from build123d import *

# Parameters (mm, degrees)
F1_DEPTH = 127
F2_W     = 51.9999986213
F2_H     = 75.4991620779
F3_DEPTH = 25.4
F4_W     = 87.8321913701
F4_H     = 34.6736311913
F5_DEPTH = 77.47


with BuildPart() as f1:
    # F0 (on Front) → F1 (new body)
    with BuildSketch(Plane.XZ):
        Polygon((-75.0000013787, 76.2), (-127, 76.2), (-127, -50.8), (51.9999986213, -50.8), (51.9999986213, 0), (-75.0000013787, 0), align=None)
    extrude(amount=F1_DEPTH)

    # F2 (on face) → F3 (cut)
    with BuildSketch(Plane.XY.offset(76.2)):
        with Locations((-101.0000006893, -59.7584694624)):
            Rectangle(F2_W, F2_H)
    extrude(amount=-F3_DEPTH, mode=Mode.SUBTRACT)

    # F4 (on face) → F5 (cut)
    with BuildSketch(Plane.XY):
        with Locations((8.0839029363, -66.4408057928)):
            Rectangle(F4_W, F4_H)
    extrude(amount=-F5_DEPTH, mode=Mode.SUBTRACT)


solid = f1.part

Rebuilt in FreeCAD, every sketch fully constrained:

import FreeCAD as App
import Part
import Sketcher
from FreeCAD import Vector
Q = App.Units.Quantity

doc = App.newDocument("Part")
body = doc.addObject("PartDesign::Body", "Body")

# Sketch on XZ plane
sketch1 = doc.addObject("Sketcher::SketchObject", "Sketch")
body.addObject(sketch1)
sketch1.AttachmentSupport = (doc.XZ_Plane, [""])
sketch1.MapMode = "FlatFace"
sketch1.addGeometry(Part.LineSegment(Vector(-75.000001, 76.2, 0), Vector(-127, 76.2, 0)), False)
sketch1.addGeometry(Part.LineSegment(Vector(-127, 76.2, 0), Vector(-127, -50.8, 0)), False)
sketch1.addGeometry(Part.LineSegment(Vector(-127, -50.8, 0), Vector(51.999999, -50.8, 0)), False)
sketch1.addGeometry(Part.LineSegment(Vector(51.999999, -50.8, 0), Vector(51.999999, 0, 0)), False)
sketch1.addGeometry(Part.LineSegment(Vector(51.999999, 0, 0), Vector(-75.000001, 0, 0)), False)
sketch1.addGeometry(Part.LineSegment(Vector(-75.000001, 0, 0), Vector(-75.000001, 76.2, 0)), False)
sketch1.addConstraint(Sketcher.Constraint("Coincident", 0, 2, 1, 1))
sketch1.addConstraint(Sketcher.Constraint("Coincident", 1, 2, 2, 1))
sketch1.addConstraint(Sketcher.Constraint("Coincident", 2, 2, 3, 1))
sketch1.addConstraint(Sketcher.Constraint("Coincident", 3, 2, 4, 1))
sketch1.addConstraint(Sketcher.Constraint("Coincident", 4, 2, 5, 1))
sketch1.addConstraint(Sketcher.Constraint("Coincident", 5, 2, 0, 1))
sketch1.addConstraint(Sketcher.Constraint("Horizontal", 0))
sketch1.addConstraint(Sketcher.Constraint("Vertical", 1))
sketch1.addConstraint(Sketcher.Constraint("Horizontal", 2))
sketch1.addConstraint(Sketcher.Constraint("Vertical", 3))
sketch1.addConstraint(Sketcher.Constraint("Horizontal", 4))
sketch1.addConstraint(Sketcher.Constraint("Vertical", 5))
sketch1.addConstraint(Sketcher.Constraint("PointOnObject", 3, 2, -1))
sketch1.addConstraint(Sketcher.Constraint("Equal", 4, 1))
sketch1.addConstraint(Sketcher.Constraint("DistanceX", 4, 2, 4, 1, Q("5 in")))
sketch1.addConstraint(Sketcher.Constraint("DistanceY", 3, 1, 3, 2, Q("2 in")))
sketch1.addConstraint(Sketcher.Constraint("DistanceX", 0, 2, -1, 1, Q("5 in")))
sketch1.addConstraint(Sketcher.Constraint("DistanceX", 0, 2, 0, 1, 51.999999))
pad1 = doc.addObject("PartDesign::Pad", "Pad")
body.addObject(pad1)
pad1.Profile = sketch1
pad1.Length = Q("5 in")

# Sketch on XY plane
sketch2 = doc.addObject("Sketcher::SketchObject", "Sketch001")
body.addObject(sketch2)
sketch2.AttachmentSupport = (doc.XY_Plane, [""])
sketch2.MapMode = "FlatFace"
sketch2.AttachmentOffset = App.Placement(Vector(0, 0, 3 * 25.4), App.Rotation())
sketch2.addGeometry(Part.LineSegment(Vector(-127, -22.008888, 0), Vector(-127, -97.508051, 0)), False)
sketch2.addGeometry(Part.LineSegment(Vector(-127, -97.508051, 0), Vector(-75.000001, -97.508051, 0)), False)
sketch2.addGeometry(Part.LineSegment(Vector(-75.000001, -97.508051, 0), Vector(-75.000001, -22.008888, 0)), False)
sketch2.addGeometry(Part.LineSegment(Vector(-75.000001, -22.008888, 0), Vector(-127, -22.008888, 0)), False)
sketch2.addConstraint(Sketcher.Constraint("Coincident", 0, 2, 1, 1))
sketch2.addConstraint(Sketcher.Constraint("Coincident", 1, 2, 2, 1))
sketch2.addConstraint(Sketcher.Constraint("Coincident", 2, 2, 3, 1))
sketch2.addConstraint(Sketcher.Constraint("Coincident", 3, 2, 0, 1))
sketch2.addConstraint(Sketcher.Constraint("Vertical", 0))
sketch2.addConstraint(Sketcher.Constraint("Horizontal", 1))
sketch2.addConstraint(Sketcher.Constraint("Vertical", 2))
sketch2.addConstraint(Sketcher.Constraint("Horizontal", 3))
sketch2.addConstraint(Sketcher.Constraint("DistanceX", 0, 2, -1, 1, Q("5 in")))
sketch2.addConstraint(Sketcher.Constraint("DistanceX", 1, 1, 1, 2, 51.999999))
sketch2.addConstraint(Sketcher.Constraint("DistanceY", 0, 2, 0, 1, 75.499162))
sketch2.addConstraint(Sketcher.Constraint("DistanceY", 0, 2, -1, 1, 97.508051))
pocket1 = doc.addObject("PartDesign::Pocket", "Pocket")
body.addObject(pocket1)
pocket1.Profile = sketch2
pocket1.Length = Q("1 in")

# Sketch on XY plane
sketch3 = doc.addObject("Sketcher::SketchObject", "Sketch002")
body.addObject(sketch3)
sketch3.AttachmentSupport = (doc.XY_Plane, [""])
sketch3.MapMode = "FlatFace"
sketch3.addGeometry(Part.LineSegment(Vector(-35.832193, -49.10399, 0), Vector(-35.832193, -83.777621, 0)), False)
sketch3.addGeometry(Part.LineSegment(Vector(-35.832193, -83.777621, 0), Vector(51.999999, -83.777621, 0)), False)
sketch3.addGeometry(Part.LineSegment(Vector(51.999999, -83.777621, 0), Vector(51.999999, -49.10399, 0)), False)
sketch3.addGeometry(Part.LineSegment(Vector(51.999999, -49.10399, 0), Vector(-35.832193, -49.10399, 0)), False)
sketch3.addConstraint(Sketcher.Constraint("Coincident", 0, 2, 1, 1))
sketch3.addConstraint(Sketcher.Constraint("Coincident", 1, 2, 2, 1))
sketch3.addConstraint(Sketcher.Constraint("Coincident", 2, 2, 3, 1))
sketch3.addConstraint(Sketcher.Constraint("Coincident", 3, 2, 0, 1))
sketch3.addConstraint(Sketcher.Constraint("Vertical", 0))
sketch3.addConstraint(Sketcher.Constraint("Horizontal", 1))
sketch3.addConstraint(Sketcher.Constraint("Vertical", 2))
sketch3.addConstraint(Sketcher.Constraint("Horizontal", 3))
sketch3.addConstraint(Sketcher.Constraint("DistanceX", 1, 1, 1, 2, 87.832191))
sketch3.addConstraint(Sketcher.Constraint("DistanceY", 0, 2, 0, 1, 34.673631))
sketch3.addConstraint(Sketcher.Constraint("DistanceX", -1, 1, 1, 2, 51.999999))
sketch3.addConstraint(Sketcher.Constraint("DistanceY", 0, 2, -1, 1, 83.777621))
pocket2 = doc.addObject("PartDesign::Pocket", "Pocket001")
body.addObject(pocket2)
pocket2.Profile = sketch3
pocket2.Length = Q("3.05 in")

doc.recompute()
